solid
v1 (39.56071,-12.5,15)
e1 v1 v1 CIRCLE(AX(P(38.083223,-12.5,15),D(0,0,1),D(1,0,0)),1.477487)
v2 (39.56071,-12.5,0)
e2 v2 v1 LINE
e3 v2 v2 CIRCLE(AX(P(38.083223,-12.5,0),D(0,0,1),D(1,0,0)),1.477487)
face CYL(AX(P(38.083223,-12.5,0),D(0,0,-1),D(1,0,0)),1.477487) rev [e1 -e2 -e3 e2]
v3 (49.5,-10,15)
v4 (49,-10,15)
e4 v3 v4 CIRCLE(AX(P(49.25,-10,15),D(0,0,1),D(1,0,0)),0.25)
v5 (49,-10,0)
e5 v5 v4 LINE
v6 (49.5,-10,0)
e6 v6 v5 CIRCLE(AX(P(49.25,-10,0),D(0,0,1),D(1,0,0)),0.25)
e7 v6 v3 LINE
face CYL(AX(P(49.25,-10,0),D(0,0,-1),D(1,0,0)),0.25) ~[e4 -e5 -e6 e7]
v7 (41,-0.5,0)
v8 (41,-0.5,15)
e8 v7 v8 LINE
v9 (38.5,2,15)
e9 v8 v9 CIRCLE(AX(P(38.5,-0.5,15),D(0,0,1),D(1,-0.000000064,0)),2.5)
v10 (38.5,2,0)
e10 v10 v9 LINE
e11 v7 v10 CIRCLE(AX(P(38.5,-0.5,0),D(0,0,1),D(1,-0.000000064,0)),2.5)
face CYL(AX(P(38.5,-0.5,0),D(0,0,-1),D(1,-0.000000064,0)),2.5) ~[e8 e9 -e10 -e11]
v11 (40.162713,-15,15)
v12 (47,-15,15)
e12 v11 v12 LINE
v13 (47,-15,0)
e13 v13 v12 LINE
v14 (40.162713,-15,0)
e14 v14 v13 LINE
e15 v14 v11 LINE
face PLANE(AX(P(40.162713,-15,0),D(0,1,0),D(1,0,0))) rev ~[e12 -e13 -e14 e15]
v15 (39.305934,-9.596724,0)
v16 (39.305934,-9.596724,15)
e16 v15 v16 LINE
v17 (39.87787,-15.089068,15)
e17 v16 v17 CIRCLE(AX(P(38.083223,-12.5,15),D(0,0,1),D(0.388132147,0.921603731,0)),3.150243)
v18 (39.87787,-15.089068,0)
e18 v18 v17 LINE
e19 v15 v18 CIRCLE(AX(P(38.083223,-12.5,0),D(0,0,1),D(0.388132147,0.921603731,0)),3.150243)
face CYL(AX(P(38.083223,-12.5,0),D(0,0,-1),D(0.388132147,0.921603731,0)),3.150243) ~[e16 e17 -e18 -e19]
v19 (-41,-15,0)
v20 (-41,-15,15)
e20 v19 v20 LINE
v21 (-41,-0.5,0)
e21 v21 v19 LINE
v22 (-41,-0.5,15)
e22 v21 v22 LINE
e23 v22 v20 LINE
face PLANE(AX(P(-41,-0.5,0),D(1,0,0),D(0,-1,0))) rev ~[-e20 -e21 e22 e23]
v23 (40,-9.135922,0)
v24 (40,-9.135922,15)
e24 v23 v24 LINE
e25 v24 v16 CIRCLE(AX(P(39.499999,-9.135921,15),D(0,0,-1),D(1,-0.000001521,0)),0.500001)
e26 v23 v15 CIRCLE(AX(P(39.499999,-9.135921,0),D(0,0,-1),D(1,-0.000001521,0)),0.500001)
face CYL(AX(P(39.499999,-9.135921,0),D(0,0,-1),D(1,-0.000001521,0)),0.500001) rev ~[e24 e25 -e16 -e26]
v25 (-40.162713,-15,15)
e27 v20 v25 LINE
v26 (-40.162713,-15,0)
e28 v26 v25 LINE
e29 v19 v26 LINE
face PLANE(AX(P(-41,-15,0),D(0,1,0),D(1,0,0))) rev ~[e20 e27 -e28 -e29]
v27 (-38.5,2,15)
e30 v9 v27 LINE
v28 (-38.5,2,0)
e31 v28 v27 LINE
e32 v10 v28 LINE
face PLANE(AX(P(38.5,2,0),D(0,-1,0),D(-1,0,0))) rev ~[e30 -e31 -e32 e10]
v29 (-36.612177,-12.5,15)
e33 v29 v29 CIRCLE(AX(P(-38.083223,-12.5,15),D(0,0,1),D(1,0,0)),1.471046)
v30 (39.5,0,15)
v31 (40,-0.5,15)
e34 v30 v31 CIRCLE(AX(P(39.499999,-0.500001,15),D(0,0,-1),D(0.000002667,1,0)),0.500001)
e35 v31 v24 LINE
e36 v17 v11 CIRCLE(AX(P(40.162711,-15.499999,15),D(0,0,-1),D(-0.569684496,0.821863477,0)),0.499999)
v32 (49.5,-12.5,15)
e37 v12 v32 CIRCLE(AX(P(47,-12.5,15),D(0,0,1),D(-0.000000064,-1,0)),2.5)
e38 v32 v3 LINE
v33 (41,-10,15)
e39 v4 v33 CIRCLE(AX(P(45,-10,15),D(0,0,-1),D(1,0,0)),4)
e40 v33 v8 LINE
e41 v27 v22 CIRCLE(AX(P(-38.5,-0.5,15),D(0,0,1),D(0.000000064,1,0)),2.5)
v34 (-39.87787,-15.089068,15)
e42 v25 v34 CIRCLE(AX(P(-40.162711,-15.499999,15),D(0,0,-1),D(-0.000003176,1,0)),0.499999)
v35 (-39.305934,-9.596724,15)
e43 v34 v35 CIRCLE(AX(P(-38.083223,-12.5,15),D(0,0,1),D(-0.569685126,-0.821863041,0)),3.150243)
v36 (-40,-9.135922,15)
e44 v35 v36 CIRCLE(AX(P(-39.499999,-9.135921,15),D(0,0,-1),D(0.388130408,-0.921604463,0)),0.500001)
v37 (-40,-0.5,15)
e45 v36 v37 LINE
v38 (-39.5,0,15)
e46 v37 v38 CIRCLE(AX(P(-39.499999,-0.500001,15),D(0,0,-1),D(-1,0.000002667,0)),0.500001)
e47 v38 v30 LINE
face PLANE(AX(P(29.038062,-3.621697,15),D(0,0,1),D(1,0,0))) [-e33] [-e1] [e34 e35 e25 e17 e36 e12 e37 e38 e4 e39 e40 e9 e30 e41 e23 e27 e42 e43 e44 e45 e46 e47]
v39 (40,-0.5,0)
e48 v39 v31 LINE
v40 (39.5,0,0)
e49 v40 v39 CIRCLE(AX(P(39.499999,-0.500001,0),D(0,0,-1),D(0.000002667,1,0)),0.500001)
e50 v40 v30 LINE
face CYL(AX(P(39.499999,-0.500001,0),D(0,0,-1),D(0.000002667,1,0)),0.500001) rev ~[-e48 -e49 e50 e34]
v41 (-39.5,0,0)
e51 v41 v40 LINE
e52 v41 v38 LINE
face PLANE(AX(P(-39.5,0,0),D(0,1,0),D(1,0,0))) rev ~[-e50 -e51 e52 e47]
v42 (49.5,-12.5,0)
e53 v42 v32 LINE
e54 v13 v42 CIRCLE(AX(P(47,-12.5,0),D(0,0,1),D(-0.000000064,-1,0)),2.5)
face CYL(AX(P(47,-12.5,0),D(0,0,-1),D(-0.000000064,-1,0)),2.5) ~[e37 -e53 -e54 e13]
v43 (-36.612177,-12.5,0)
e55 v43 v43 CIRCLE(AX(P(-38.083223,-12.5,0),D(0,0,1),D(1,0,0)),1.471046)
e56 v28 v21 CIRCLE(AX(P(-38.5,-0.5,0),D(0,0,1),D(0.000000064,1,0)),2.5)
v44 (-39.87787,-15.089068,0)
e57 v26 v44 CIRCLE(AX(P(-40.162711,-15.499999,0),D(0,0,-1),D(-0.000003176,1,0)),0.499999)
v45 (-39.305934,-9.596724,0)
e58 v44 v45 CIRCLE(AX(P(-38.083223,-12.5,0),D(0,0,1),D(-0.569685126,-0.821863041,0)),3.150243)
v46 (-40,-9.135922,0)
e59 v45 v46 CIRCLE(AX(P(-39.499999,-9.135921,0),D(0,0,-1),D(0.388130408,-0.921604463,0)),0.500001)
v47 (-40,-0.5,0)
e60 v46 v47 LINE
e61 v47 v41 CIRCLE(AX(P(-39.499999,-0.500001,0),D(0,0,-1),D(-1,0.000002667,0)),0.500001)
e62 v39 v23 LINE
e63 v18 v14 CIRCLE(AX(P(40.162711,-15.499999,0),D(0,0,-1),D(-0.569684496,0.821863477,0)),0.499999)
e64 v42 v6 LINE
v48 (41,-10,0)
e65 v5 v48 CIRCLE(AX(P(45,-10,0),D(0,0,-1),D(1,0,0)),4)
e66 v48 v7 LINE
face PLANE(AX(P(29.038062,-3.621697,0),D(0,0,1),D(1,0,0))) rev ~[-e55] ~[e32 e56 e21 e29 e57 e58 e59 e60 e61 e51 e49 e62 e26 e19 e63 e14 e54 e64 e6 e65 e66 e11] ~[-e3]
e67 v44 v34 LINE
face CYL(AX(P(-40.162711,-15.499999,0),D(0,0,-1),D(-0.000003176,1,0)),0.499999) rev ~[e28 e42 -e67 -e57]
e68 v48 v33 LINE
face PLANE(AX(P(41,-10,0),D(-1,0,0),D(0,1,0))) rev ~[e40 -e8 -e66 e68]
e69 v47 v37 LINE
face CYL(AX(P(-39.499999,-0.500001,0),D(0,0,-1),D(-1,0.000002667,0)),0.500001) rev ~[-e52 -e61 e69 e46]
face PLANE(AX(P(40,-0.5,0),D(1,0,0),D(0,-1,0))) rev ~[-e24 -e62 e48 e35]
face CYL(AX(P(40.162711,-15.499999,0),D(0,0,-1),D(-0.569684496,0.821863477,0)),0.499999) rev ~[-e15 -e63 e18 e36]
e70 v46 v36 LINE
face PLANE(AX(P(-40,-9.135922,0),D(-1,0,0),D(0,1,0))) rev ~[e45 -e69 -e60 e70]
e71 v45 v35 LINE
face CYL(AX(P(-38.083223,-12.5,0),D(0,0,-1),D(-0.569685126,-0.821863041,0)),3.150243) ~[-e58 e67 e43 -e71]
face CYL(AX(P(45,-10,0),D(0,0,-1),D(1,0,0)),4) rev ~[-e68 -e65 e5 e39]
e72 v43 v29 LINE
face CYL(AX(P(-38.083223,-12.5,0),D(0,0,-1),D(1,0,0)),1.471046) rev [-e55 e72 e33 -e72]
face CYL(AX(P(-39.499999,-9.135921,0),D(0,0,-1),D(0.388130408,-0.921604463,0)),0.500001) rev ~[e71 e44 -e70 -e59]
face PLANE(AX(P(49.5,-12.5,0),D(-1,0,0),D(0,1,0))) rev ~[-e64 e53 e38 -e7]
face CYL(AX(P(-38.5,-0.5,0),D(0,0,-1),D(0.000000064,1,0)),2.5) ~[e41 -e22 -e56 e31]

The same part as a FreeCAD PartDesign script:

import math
import FreeCAD as App
import Part
import Sketcher

V = App.Vector
Q = App.Units.Quantity

doc = App.newDocument("Part")
params = doc.addObject("Spreadsheet::Sheet", "Params")
for row, (alias, value) in enumerate([
    ("sketch1_radius", "4 mm"),
    ("sketch1_radius2", "2.5 mm"),
    ("sketch1_radius3", "0.499999 mm"),
    ("sketch1_radius4", "0.500001 mm"),
    ("sketch1_width", "77 mm"),
    ("pad1_length", "15 mm"),
], start=1):
    params.set(f"A{row}", alias)
    params.set(f"B{row}", "=" + value)
    params.setAlias(f"B{row}", alias)

body = doc.addObject("PartDesign::Body", "Body")

# Sketch on XY plane
sketch1 = doc.addObject("Sketcher::SketchObject", "Sketch")
body.addObject(sketch1)
sketch1.AttachmentSupport = (doc.XY_Plane, [""])
sketch1.MapMode = "FlatFace"
sketch1.addGeometry(Part.LineSegment(V(38.5, 2, 0), V(-38.5, 2, 0)), False)
sketch1.addGeometry(Part.ArcOfCircle(Part.Circle(V(-38.5, -0.5, 0), V(0, 0, 1), 2.5), math.radians(90), math.radians(180)), False)
sketch1.addGeometry(Part.LineSegment(V(-41, -0.5, 0), V(-41, -15, 0)), False)
sketch1.addGeometry(Part.LineSegment(V(-41, -15, 0), V(-40.16, -15, 0)), False)
sketch1.addGeometry(Part.ArcOfCircle(Part.Circle(V(-40.16, -15.5, 0), V(0, 0, 1), 0.5), math.radians(55), math.radians(90)), False)
sketch1.addGeometry(Part.ArcOfCircle(Part.Circle(V(-38.08, -12.5, 0), V(0, 0, 1), 3.15), math.radians(-125), math.radians(113)), False)
sketch1.addGeometry(Part.ArcOfCircle(Part.Circle(V(-39.5, -9.14, 0), V(0, 0, 1), 0.5), math.radians(-180), math.radians(-67)), False)
sketch1.addGeometry(Part.LineSegment(V(-40, -9.14, 0), V(-40, -0.5, 0)), False)
sketch1.addGeometry(Part.ArcOfCircle(Part.Circle(V(-39.5, -0.5, 0), V(0, 0, 1), 0.5), math.radians(90), math.radians(180)), False)
sketch1.addGeometry(Part.LineSegment(V(-39.5, 0, 0), V(39.5, 0, 0)), False)
sketch1.addGeometry(Part.ArcOfCircle(Part.Circle(V(39.5, -0.5, 0), V(0, 0, 1), 0.5), math.radians(0), math.radians(90)), False)
sketch1.addGeometry(Part.LineSegment(V(40, -0.5, 0), V(40, -9.14, 0)), False)
sketch1.addGeometry(Part.ArcOfCircle(Part.Circle(V(39.5, -9.14, 0), V(0, 0, 1), 0.5), math.radians(-113), math.radians(0)), False)
sketch1.addGeometry(Part.ArcOfCircle(Part.Circle(V(38.08, -12.5, 0), V(0, 0, 1), 3.15), math.radians(67), math.radians(305)), False)
sketch1.addGeometry(Part.ArcOfCircle(Part.Circle(V(40.16, -15.5, 0), V(0, 0, 1), 0.5), math.radians(90), math.radians(125)), False)
sketch1.addGeometry(Part.LineSegment(V(40.16, -15, 0), V(47, -15, 0)), False)
sketch1.addGeometry(Part.ArcOfCircle(Part.Circle(V(47, -12.5, 0), V(0, 0, 1), 2.5), math.radians(-90), math.radians(0)), False)
sketch1.addGeometry(Part.LineSegment(V(49.5, -12.5, 0), V(49.5, -10, 0)), False)
sketch1.addGeometry(Part.ArcOfCircle(Part.Circle(V(49.25, -10, 0), V(0, 0, 1), 0.25), math.radians(0), math.radians(180)), False)
sketch1.addGeometry(Part.ArcOfCircle(Part.Circle(V(45, -10, 0), V(0, 0, 1), 4), math.radians(180), math.radians(360)), False)
sketch1.addGeometry(Part.LineSegment(V(41, -10, 0), V(41, -0.5, 0)), False)
sketch1.addGeometry(Part.ArcOfCircle(Part.Circle(V(38.5, -0.5, 0), V(0, 0, 1), 2.5), math.radians(0), math.radians(90)), False)
sketch1.addGeometry(Part.Circle(V(-38.08, -12.5, 0), V(0, 0, 1), 1.47), False)
sketch1.addGeometry(Part.Circle(V(38.08, -12.5, 0), V(0, 0, 1), 1.48), False)
sketch1.addConstraint(Sketcher.Constraint("Tangent", 0, 2, 1, 1))
sketch1.addConstraint(Sketcher.Constraint("Tangent", 1, 2, 2, 1))
sketch1.addConstraint(Sketcher.Constraint("Coincident", 2, 2, 3, 1))
sketch1.addConstraint(Sketcher.Constraint("Coincident", 3, 2, 4, 2))
sketch1.addConstraint(Sketcher.Constraint("Tangent", 4, 1, 5, 1))
sketch1.addConstraint(Sketcher.Constraint("Tangent", 5, 2, 6, 2))
sketch1.addConstraint(Sketcher.Constraint("Tangent", 6, 1, 7, 1))
sketch1.addConstraint(Sketcher.Constraint("Coincident", 7, 2, 8, 2))
sketch1.addConstraint(Sketcher.Constraint("Coincident", 8, 1, 9, 1))
sketch1.addConstraint(Sketcher.Constraint("Coincident", 9, 2, 10, 2))
sketch1.addConstraint(Sketcher.Constraint("Coincident", 10, 1, 11, 1))
sketch1.addConstraint(Sketcher.Constraint("Tangent", 11, 2, 12, 2))
sketch1.addConstraint(Sketcher.Constraint("Tangent", 12, 1, 13, 1))
sketch1.addConstraint(Sketcher.Constraint("Tangent", 13, 2, 14, 2))
sketch1.addConstraint(Sketcher.Constraint("Coincident", 14, 1, 15, 1))
sketch1.addConstraint(Sketcher.Constraint("Tangent", 15, 2, 16, 1))
sketch1.addConstraint(Sketcher.Constraint("Tangent", 16, 2, 17, 1))
sketch1.addConstraint(Sketcher.Constraint("Tangent", 17, 2, 18, 1))
sketch1.addConstraint(Sketcher.Constraint("Tangent", 18, 2, 19, 2))
sketch1.addConstraint(Sketcher.Constraint("Tangent", 19, 1, 20, 1))
sketch1.addConstraint(Sketcher.Constraint("Tangent", 20, 2, 21, 1))
sketch1.addConstraint(Sketcher.Constraint("Tangent", 21, 2, 0, 1))
sketch1.addConstraint(Sketcher.Constraint("Horizontal", 0))
sketch1.addConstraint(Sketcher.Constraint("Vertical", 2))
sketch1.addConstraint(Sketcher.Constraint("Horizontal", 3))
sketch1.addConstraint(Sketcher.Constraint("Vertical", 7))
sketch1.addConstraint(Sketcher.Constraint("Horizontal", 9))
sketch1.addConstraint(Sketcher.Constraint("Vertical", 11))
sketch1.addConstraint(Sketcher.Constraint("Horizontal", 15))
sketch1.addConstraint(Sketcher.Constraint("Vertical", 17))
sketch1.addConstraint(Sketcher.Constraint("Vertical", 20))
sketch1.addConstraint(Sketcher.Constraint("Coincident", 22, 3, 5, 3))
sketch1.addConstraint(Sketcher.Constraint("Coincident", 23, 3, 13, 3))
sketch1.addConstraint(Sketcher.Constraint("Equal", 6, 8))
sketch1.addConstraint(Sketcher.Constraint("Equal", 8, 10))
sketch1.addConstraint(Sketcher.Constraint("Equal", 10, 12))
sketch1.addConstraint(Sketcher.Constraint("Equal", 5, 13))
sketch1.addConstraint(Sketcher.Constraint("Equal", 4, 14))
sketch1.addConstraint(Sketcher.Constraint("Equal", 1, 16))
sketch1.addConstraint(Sketcher.Constraint("Equal", 16, 21))
sketch1.addConstraint(Sketcher.Constraint("Symmetric", 8, 1, 9, 2, -1, 1))
sketch1.addConstraint(Sketcher.Constraint("Symmetric", 6, 3, 12, 3, -2))
sketch1.addConstraint(Sketcher.Constraint("Symmetric", 4, 3, 14, 3, -2))
sketch1.addConstraint(Sketcher.Constraint("Horizontal", 1, 3, 8, 3))
sketch1.addConstraint(Sketcher.Constraint("Horizontal", 13, 3, 16, 3))
sketch1.addConstraint(Sketcher.Constraint("Horizontal", 18, 3, 19, 3))
sketch1.addConstraint(Sketcher.Constraint("Horizontal", 1, 2, 7, 2))
sketch1.addConstraint(Sketcher.Constraint("Horizontal", 7, 2, 10, 1))
sketch1.addConstraint(Sketcher.Constraint("Vertical", 4, 3, 3, 2))
sketch1.addConstraint(Sketcher.Constraint("Vertical", 6, 3, 8, 1))
sketch1.addConstraint(Sketcher.Constraint("Radius", 19, Q("4 mm")))
sketch1.addConstraint(Sketcher.Constraint("Radius", 1, Q("2.5 mm")))
sketch1.addConstraint(Sketcher.Constraint("Radius", 4, Q("0.499999 mm")))
sketch1.addConstraint(Sketcher.Constraint("Radius", 6, Q("0.500001 mm")))
sketch1.addConstraint(Sketcher.Constraint("DistanceX", 0, 2, 0, 1, Q("77 mm")))
sketch1.addConstraint(Sketcher.Constraint("DistanceX", 9, 1, 9, 2, Q("79 mm")))
sketch1.addConstraint(Sketcher.Constraint("Radius", 18, Q("0.25 mm")))
sketch1.addConstraint(Sketcher.Constraint("DistanceY", 2, 2, 2, 1, Q("14.5 mm")))
sketch1.addConstraint(Sketcher.Constraint("DistanceY", 17, 1, 17, 2, Q("2.5 mm")))
sketch1.addConstraint(Sketcher.Constraint("DistanceX", -1, 1, 16, 3, Q("47 mm")))
sketch1.addConstraint(Sketcher.Constraint("Diameter", 22, Q("2.942092 mm")))
sketch1.addConstraint(Sketcher.Constraint("Diameter", 23, Q("2.954974 mm")))
sketch1.addConstraint(Sketcher.Constraint("Radius", 5, Q("3.150243 mm")))
sketch1.addConstraint(Sketcher.Constraint("DistanceY", 5, 2, 6, 1, Q("0.460802 mm")))
sketch1.addConstraint(Sketcher.Constraint("DistanceX", 15, 1, 15, 2, Q("6.837287 mm")))
sketch1.setExpression("Constraints[50]", "Params.sketch1_radius")
sketch1.setExpression("Constraints[51]", "Params.sketch1_radius2")
sketch1.setExpression("Constraints[52]", "Params.sketch1_radius3")
sketch1.setExpression("Constraints[53]", "Params.sketch1_radius4")
sketch1.setExpression("Constraints[54]", "Params.sketch1_width")
pad1 = doc.addObject("PartDesign::Pad", "Pad")
body.addObject(pad1)
pad1.Profile = sketch1
pad1.setExpression("Length", "Params.pad1_length")

doc.recompute()
